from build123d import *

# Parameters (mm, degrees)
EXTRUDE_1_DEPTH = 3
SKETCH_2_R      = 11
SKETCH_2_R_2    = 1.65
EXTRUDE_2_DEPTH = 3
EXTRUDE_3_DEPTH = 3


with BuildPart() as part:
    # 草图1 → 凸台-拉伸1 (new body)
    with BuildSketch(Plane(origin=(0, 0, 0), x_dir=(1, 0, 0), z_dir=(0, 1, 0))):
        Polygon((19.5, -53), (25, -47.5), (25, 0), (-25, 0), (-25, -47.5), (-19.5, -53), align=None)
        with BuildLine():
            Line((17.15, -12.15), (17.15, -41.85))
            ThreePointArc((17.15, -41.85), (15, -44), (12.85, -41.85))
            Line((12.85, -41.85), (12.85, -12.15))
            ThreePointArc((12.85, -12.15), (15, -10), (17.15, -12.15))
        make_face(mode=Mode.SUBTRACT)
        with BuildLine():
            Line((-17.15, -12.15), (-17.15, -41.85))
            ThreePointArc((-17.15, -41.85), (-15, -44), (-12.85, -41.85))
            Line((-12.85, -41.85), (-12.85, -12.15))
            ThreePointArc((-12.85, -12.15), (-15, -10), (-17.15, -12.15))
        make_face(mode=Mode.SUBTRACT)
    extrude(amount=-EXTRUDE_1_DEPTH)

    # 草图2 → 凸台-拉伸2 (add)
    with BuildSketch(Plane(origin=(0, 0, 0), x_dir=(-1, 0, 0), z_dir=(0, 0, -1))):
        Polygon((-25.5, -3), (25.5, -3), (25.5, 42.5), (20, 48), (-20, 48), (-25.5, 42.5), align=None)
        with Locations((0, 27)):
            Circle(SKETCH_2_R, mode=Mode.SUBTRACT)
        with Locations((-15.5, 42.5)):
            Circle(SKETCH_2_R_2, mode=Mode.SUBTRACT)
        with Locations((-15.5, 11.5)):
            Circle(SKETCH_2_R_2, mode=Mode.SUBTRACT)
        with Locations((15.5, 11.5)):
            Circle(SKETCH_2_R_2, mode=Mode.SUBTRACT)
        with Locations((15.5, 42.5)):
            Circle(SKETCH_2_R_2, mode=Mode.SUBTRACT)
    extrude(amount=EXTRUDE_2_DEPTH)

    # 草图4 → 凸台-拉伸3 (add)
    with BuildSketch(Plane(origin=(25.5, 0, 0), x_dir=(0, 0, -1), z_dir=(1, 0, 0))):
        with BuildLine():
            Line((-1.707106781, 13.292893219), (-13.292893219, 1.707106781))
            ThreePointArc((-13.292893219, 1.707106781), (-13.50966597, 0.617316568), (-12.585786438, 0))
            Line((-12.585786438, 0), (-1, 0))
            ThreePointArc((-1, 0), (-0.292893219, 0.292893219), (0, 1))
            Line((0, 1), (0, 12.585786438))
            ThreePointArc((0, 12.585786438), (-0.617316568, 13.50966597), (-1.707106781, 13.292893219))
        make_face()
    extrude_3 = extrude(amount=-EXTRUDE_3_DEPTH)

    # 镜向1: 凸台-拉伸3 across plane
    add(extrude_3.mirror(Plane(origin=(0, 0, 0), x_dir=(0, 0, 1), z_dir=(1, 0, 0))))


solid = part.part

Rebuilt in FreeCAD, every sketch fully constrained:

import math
import FreeCAD as App
import Part
import Sketcher
from FreeCAD import Vector


def add_polygon(sketch, points):
    """Adds a closed chain of lines whose ends are joined by coincident constraints."""
    first, n = sketch.GeometryCount, len(points)
    for a, b in zip(points, points[1:] + points[:1]):
        sketch.addGeometry(Part.LineSegment(App.Vector(*a, 0), App.Vector(*b, 0)), False)
    for i in range(n):
        sketch.addConstraint(Sketcher.Constraint("Coincident", first + i, 2, first + (i + 1) % n, 1))

doc = App.newDocument("Part")
body = doc.addObject("PartDesign::Body", "Body")

# Sketch on XZ plane
sketch1 = body.newObject("Sketcher::SketchObject", "Sketch")
sketch1.AttachmentSupport = (doc.getObject("XZ_Plane"), [""])
sketch1.MapMode = "FlatFace"
add_polygon(sketch1, [(19.5, 53), (25, 47.5), (25, 0), (-25, 0), (-25, 47.5), (-19.5, 53)])  # lines 0-5
sketch1.addGeometry(Part.LineSegment(Vector(-17.1, 41.9, 0), Vector(-17.1, 12.2, 0)), False)  # 6
sketch1.addGeometry(Part.ArcOfCircle(Part.Circle(Vector(-15, 12.2, 0), Vector(0, 0, 1), 2.1), math.radians(180), math.radians(360)), False)  # 7
sketch1.addGeometry(Part.LineSegment(Vector(-12.8, 12.2, 0), Vector(-12.8, 41.9, 0)), False)  # 8
sketch1.addGeometry(Part.ArcOfCircle(Part.Circle(Vector(-15, 41.9, 0), Vector(0, 0, 1), 2.1), math.radians(0), math.radians(180)), False)  # 9
sketch1.addGeometry(Part.ArcOfCircle(Part.Circle(Vector(15, 12.2, 0), Vector(0, 0, 1), 2.1), math.radians(180), math.radians(360)), False)  # 10
sketch1.addGeometry(Part.LineSegment(Vector(17.1, 12.2, 0), Vector(17.1, 41.9, 0)), False)  # 11
sketch1.addGeometry(Part.ArcOfCircle(Part.Circle(Vector(15, 41.9, 0), Vector(0, 0, 1), 2.1), math.radians(0), math.radians(180)), False)  # 12
sketch1.addGeometry(Part.LineSegment(Vector(12.8, 41.9, 0), Vector(12.8, 12.2, 0)), False)  # 13
sketch1.addConstraint(Sketcher.Constraint("Tangent", 6, 2, 7, 1))
sketch1.addConstraint(Sketcher.Constraint("Tangent", 7, 2, 8, 1))
sketch1.addConstraint(Sketcher.Constraint("Tangent", 8, 2, 9, 1))
sketch1.addConstraint(Sketcher.Constraint("Tangent", 9, 2, 6, 1))
sketch1.addConstraint(Sketcher.Constraint("Tangent", 10, 2, 11, 1))
sketch1.addConstraint(Sketcher.Constraint("Tangent", 11, 2, 12, 1))
sketch1.addConstraint(Sketcher.Constraint("Tangent", 12, 2, 13, 1))
sketch1.addConstraint(Sketcher.Constraint("Tangent", 13, 2, 10, 1))
sketch1.addConstraint(Sketcher.Constraint("Vertical", 1))
sketch1.addConstraint(Sketcher.Constraint("Horizontal", 2))
sketch1.addConstraint(Sketcher.Constraint("Vertical", 3))
sketch1.addConstraint(Sketcher.Constraint("Horizontal", 5))
sketch1.addConstraint(Sketcher.Constraint("Vertical", 6))
sketch1.addConstraint(Sketcher.Constraint("Vertical", 8))
sketch1.addConstraint(Sketcher.Constraint("Vertical", 11))
sketch1.addConstraint(Sketcher.Constraint("Vertical", 13))
sketch1.addConstraint(Sketcher.Constraint("Equal", 9, 10))
sketch1.addConstraint(Sketcher.Constraint("Symmetric", 1, 2, 2, 2, -1, 1))
sketch1.addConstraint(Sketcher.Constraint("Symmetric", 7, 3, 10, 3, -2))
sketch1.addConstraint(Sketcher.Constraint("Perpendicular", 0, 4))
sketch1.addConstraint(Sketcher.Constraint("Horizontal", 9, 3, 12, 3))
sketch1.addConstraint(Sketcher.Constraint("Horizontal", 0, 2, 3, 2))
sketch1.addConstraint(Sketcher.Constraint("Equal", 0, 4))
sketch1.addConstraint(Sketcher.Constraint("DistanceX", 2, 2, 2, 1, 50.0))
sketch1.addConstraint(Sketcher.Constraint("DistanceX", 5, 1, 5, 2, 39.0))
sketch1.addConstraint(Sketcher.Constraint("Radius", 7, 2.15))
sketch1.addConstraint(Sketcher.Constraint("DistanceY", 1, 2, 1, 1, 47.5))
sketch1.addConstraint(Sketcher.Constraint("DistanceY", 6, 2, 6, 1, 29.7))
sketch1.addConstraint(Sketcher.Constraint("DistanceX", 7, 3, -1, 1, 15.0))
sketch1.addConstraint(Sketcher.Constraint("DistanceY", -1, 1, 7, 3, 12.15))
pad1 = body.newObject("PartDesign::Pad", "Pad")
pad1.Profile = sketch1
pad1.Length = 3

# Sketch on XY plane
sketch2 = body.newObject("Sketcher::SketchObject", "Sketch001")
sketch2.AttachmentSupport = (doc.getObject("XY_Plane"), [""])
sketch2.MapMode = "FlatFace"
add_polygon(sketch2, [(25.5, -3), (-25.5, -3), (-25.5, 42.5), (-20, 48), (20, 48), (25.5, 42.5)])  # lines 0-5
sketch2.addGeometry(Part.Circle(Vector(15.5, 11.5, 0), Vector(0, 0, 1), 1.6), False)  # 6
sketch2.addGeometry(Part.Circle(Vector(-15.5, 11.5, 0), Vector(0, 0, 1), 1.6), False)  # 7
sketch2.addGeometry(Part.Circle(Vector(15.5, 42.5, 0), Vector(0, 0, 1), 1.6), False)  # 8
sketch2.addGeometry(Part.Circle(Vector(0, 27, 0), Vector(0, 0, 1), 11), False)  # 9
sketch2.addGeometry(Part.Circle(Vector(-15.5, 42.5, 0), Vector(0, 0, 1), 1.6), False)  # 10
sketch2.addConstraint(Sketcher.Constraint("Horizontal", 0))
sketch2.addConstraint(Sketcher.Constraint("Vertical", 1))
sketch2.addConstraint(Sketcher.Constraint("Horizontal", 3))
sketch2.addConstraint(Sketcher.Constraint("Vertical", 5))
sketch2.addConstraint(Sketcher.Constraint("Equal", 6, 7))
sketch2.addConstraint(Sketcher.Constraint("Equal", 7, 8))
sketch2.addConstraint(Sketcher.Constraint("Equal", 8, 10))
sketch2.addConstraint(Sketcher.Constraint("Symmetric", 6, 3, 7, 3, -2))
sketch2.addConstraint(Sketcher.Constraint("Symmetric", 8, 3, 10, 3, -2))
sketch2.addConstraint(Sketcher.Constraint("Symmetric", 1, 2, 4, 2, -2))
sketch2.addConstraint(Sketcher.Constraint("PointOnObject", 9, 3, -2))
sketch2.addConstraint(Sketcher.Constraint("Perpendicular", 2, 4))
sketch2.addConstraint(Sketcher.Constraint("Horizontal", 10, 3, 1, 2))
sketch2.addConstraint(Sketcher.Constraint("Vertical", 6, 3, 8, 3))
sketch2.addConstraint(Sketcher.Constraint("Equal", 2, 4))
sketch2.addConstraint(Sketcher.Constraint("Diameter", 9, 22.0))
sketch2.addConstraint(Sketcher.Constraint("Diameter", 6, 3.3))
sketch2.addConstraint(Sketcher.Constraint("DistanceX", 0, 2, 0, 1, 51.0))
sketch2.addConstraint(Sketcher.Constraint("DistanceX", 3, 1, 3, 2, 40.0))
sketch2.addConstraint(Sketcher.Constraint("DistanceY", 1, 1, 1, 2, 45.5))
sketch2.addConstraint(Sketcher.Constraint("DistanceY", -1, 1, 9, 3, 27.0))
sketch2.addConstraint(Sketcher.Constraint("DistanceY", 0, 2, -1, 1, 3.0))
sketch2.addConstraint(Sketcher.Constraint("DistanceX", 7, 3, 6, 3, 31.0))
sketch2.addConstraint(Sketcher.Constraint("DistanceY", 6, 3, 8, 3, 31.0))
pad2 = body.newObject("PartDesign::Pad", "Pad001")
pad2.Profile = sketch2
pad2.Length = 3
pad2.Reversed = True

# Sketch on YZ plane
sketch3 = body.newObject("Sketcher::SketchObject", "Sketch002")
sketch3.AttachmentSupport = (doc.getObject("YZ_Plane"), [""])
sketch3.MapMode = "FlatFace"
sketch3.AttachmentOffset = App.Placement(Vector(0, 0, 25.5), App.Rotation())
sketch3.addGeometry(Part.LineSegment(Vector(13.3, 1.7, 0), Vector(1.7, 13.3, 0)), False)
sketch3.addGeometry(Part.ArcOfCircle(Part.Circle(Vector(1, 12.6, 0), Vector(0, 0, 1), 1), math.radians(45), math.radians(180)), False)
sketch3.addGeometry(Part.LineSegment(Vector(0, 12.6, 0), Vector(0, 1, 0)), False)
sketch3.addGeometry(Part.ArcOfCircle(Part.Circle(Vector(1, 1, 0), Vector(0, 0, 1), 1), math.radians(-180), math.radians(-90)), False)
sketch3.addGeometry(Part.LineSegment(Vector(1, 0, 0), Vector(12.6, 0, 0)), False)
sketch3.addGeometry(Part.ArcOfCircle(Part.Circle(Vector(12.6, 1, 0), Vector(0, 0, 1), 1), math.radians(-90), math.radians(45)), False)
sketch3.addConstraint(Sketcher.Constraint("Tangent", 0, 2, 1, 1))
sketch3.addConstraint(Sketcher.Constraint("Tangent", 1, 2, 2, 1))
sketch3.addConstraint(Sketcher.Constraint("Tangent", 2, 2, 3, 1))
sketch3.addConstraint(Sketcher.Constraint("Tangent", 3, 2, 4, 1))
sketch3.addConstraint(Sketcher.Constraint("Tangent", 4, 2, 5, 1))
sketch3.addConstraint(Sketcher.Constraint("Tangent", 5, 2, 0, 1))
sketch3.addConstraint(Sketcher.Constraint("Vertical", 2))
sketch3.addConstraint(Sketcher.Constraint("Horizontal", 4))
sketch3.addConstraint(Sketcher.Constraint("Equal", 1, 3))
sketch3.addConstraint(Sketcher.Constraint("Equal", 3, 5))
sketch3.addConstraint(Sketcher.Constraint("PointOnObject", 1, 2, -2))
sketch3.addConstraint(Sketcher.Constraint("PointOnObject", 3, 2, -1))
sketch3.addConstraint(Sketcher.Constraint("Equal", 4, 2))
sketch3.addConstraint(Sketcher.Constraint("Radius", 1, 1.0))
sketch3.addConstraint(Sketcher.Constraint("DistanceX", 4, 1, 4, 2, 11.585786))
pad3 = body.newObject("PartDesign::Pad", "Pad002")
pad3.Profile = sketch3
pad3.Length = 3
pad3.Reversed = True
doc.recompute()

mirrored = body.newObject("PartDesign::Mirrored", "Mirrored")
mirrored.Originals = [pad3]
mirrored.MirrorPlane = (doc.getObject("YZ_Plane"), [""])
body.Tip = mirrored

doc.recompute()
